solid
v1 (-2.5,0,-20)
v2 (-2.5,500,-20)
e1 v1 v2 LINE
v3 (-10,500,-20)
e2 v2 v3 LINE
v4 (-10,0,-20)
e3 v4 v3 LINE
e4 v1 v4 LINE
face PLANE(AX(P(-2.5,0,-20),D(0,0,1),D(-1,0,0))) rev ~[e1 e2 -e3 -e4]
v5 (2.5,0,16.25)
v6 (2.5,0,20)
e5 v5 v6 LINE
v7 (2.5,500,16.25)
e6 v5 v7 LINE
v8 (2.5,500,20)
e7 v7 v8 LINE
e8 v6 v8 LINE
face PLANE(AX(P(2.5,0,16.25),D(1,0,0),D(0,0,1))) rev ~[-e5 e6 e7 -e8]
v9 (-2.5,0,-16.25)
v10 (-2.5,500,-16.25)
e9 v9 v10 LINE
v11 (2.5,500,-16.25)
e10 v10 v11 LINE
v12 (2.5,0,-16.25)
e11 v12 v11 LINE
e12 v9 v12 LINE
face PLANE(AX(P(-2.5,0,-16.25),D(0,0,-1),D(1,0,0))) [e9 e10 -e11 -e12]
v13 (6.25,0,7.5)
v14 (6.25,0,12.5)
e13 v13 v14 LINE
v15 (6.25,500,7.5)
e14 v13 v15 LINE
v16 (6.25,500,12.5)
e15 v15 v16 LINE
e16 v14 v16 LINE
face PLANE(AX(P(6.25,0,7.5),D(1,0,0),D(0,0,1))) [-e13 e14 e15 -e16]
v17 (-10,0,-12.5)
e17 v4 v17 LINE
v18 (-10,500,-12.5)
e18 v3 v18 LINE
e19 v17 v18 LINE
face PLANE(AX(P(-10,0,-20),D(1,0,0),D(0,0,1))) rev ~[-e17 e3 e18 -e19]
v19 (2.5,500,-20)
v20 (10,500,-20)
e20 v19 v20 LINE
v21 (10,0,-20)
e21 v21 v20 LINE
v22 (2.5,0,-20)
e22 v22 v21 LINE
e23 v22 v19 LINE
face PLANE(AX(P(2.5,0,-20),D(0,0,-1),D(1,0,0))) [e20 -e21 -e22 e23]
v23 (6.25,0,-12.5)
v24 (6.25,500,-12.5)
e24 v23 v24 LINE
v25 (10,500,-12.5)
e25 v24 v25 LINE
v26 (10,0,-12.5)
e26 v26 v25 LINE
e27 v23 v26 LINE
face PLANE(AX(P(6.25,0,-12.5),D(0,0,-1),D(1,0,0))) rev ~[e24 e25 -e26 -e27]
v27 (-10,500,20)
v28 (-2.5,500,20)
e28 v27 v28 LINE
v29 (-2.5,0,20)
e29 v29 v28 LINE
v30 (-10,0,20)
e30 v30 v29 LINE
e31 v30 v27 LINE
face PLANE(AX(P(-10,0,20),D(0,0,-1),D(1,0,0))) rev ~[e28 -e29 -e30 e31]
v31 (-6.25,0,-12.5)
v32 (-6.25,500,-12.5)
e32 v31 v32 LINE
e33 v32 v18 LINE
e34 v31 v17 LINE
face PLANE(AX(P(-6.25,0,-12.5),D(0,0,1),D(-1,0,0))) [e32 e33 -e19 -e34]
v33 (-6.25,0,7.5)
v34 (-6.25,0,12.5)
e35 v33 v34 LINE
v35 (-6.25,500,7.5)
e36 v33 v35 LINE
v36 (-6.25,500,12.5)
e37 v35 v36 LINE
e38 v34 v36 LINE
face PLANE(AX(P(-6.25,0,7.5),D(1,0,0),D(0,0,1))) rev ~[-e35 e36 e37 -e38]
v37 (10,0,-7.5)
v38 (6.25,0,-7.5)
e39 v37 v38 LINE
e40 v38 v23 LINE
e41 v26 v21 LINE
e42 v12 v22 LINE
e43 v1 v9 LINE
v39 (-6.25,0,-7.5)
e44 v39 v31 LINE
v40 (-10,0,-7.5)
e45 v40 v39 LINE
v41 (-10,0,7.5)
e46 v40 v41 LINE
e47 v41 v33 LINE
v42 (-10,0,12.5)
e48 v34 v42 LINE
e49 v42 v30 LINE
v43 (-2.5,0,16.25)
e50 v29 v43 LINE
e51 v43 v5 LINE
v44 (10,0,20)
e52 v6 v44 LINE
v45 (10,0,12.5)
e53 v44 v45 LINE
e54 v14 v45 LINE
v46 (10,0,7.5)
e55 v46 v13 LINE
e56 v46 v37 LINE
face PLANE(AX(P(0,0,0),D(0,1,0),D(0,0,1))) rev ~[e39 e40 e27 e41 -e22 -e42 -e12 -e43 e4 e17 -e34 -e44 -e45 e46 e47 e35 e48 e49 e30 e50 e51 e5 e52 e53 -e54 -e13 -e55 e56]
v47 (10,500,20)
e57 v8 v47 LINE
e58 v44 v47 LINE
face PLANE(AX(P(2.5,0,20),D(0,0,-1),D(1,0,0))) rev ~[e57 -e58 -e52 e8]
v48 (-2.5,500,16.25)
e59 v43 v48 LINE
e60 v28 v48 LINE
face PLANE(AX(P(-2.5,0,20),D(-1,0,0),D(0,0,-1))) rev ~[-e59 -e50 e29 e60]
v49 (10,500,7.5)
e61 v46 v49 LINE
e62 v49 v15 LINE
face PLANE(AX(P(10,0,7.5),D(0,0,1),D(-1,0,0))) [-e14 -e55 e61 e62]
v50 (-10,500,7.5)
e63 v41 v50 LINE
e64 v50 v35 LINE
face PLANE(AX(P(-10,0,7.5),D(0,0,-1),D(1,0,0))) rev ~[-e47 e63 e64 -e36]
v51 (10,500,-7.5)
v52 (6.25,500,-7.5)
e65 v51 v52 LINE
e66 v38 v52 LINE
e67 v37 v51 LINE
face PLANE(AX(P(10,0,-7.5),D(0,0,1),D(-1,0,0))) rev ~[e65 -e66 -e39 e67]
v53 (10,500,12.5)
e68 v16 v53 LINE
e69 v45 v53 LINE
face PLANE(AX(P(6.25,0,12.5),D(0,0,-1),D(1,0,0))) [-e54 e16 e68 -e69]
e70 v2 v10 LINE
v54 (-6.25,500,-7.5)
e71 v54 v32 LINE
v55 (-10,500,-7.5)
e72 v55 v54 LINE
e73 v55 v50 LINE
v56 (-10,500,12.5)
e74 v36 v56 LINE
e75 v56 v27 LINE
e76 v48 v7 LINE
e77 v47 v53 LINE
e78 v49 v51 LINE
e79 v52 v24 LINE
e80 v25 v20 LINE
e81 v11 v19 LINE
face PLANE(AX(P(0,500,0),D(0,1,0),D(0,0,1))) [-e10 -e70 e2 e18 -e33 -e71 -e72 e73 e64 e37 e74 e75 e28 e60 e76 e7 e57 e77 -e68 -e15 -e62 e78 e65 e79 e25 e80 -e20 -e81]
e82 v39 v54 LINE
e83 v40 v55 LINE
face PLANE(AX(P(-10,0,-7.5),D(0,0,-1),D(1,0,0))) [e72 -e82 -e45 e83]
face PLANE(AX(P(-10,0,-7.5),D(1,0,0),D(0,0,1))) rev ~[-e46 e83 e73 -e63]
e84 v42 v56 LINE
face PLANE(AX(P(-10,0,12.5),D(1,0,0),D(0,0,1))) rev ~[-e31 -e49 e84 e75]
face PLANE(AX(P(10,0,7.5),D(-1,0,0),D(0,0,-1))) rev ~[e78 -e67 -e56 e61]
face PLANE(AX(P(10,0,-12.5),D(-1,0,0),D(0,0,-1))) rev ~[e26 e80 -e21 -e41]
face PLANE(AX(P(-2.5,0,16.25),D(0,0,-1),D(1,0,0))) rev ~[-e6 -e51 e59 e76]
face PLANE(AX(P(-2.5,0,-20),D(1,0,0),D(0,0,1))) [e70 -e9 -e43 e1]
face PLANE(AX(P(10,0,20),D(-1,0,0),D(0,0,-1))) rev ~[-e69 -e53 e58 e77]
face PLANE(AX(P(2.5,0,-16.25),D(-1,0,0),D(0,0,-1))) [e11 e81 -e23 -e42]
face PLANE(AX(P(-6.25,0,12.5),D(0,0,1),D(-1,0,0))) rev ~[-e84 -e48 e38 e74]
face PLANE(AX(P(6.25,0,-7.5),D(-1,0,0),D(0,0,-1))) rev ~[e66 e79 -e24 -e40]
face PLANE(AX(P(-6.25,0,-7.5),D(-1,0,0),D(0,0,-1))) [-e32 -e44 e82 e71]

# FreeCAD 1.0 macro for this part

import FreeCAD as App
import Part
import Sketcher
from FreeCAD import Vector
Q = App.Units.Quantity

doc = App.newDocument("Part")
body = doc.addObject("PartDesign::Body", "Body")

# Sketch on XZ plane
sketch1 = body.newObject("Sketcher::SketchObject", "Sketch")
sketch1.AttachmentSupport = (doc.getObject("XZ_Plane"), [""])
sketch1.MapMode = "FlatFace"
sketch1.addGeometry([
    Part.LineSegment(Vector(-6.25, 12.5, 0), Vector(-6.25, 7.5, 0)),  # 0
    Part.LineSegment(Vector(-6.25, 7.5, 0), Vector(-10, 7.5, 0)),  # 1
    Part.LineSegment(Vector(-10, 7.5, 0), Vector(-10, -7.5, 0)),  # 2
    Part.LineSegment(Vector(-10, -7.5, 0), Vector(-6.25, -7.5, 0)),  # 3
    Part.LineSegment(Vector(-6.25, -7.5, 0), Vector(-6.25, -12.5, 0)),  # 4
    Part.LineSegment(Vector(-6.25, -12.5, 0), Vector(-10, -12.5, 0)),  # 5
    Part.LineSegment(Vector(-10, -12.5, 0), Vector(-10, -20, 0)),  # 6
    Part.LineSegment(Vector(-10, -20, 0), Vector(-2.5, -20, 0)),  # 7
    Part.LineSegment(Vector(-2.5, -20, 0), Vector(-2.5, -16.25, 0)),  # 8
    Part.LineSegment(Vector(-2.5, -16.25, 0), Vector(2.5, -16.25, 0)),  # 9
    Part.LineSegment(Vector(2.5, -16.25, 0), Vector(2.5, -20, 0)),  # 10
    Part.LineSegment(Vector(2.5, -20, 0), Vector(10, -20, 0)),  # 11
    Part.LineSegment(Vector(10, -20, 0), Vector(10, -12.5, 0)),  # 12
    Part.LineSegment(Vector(10, -12.5, 0), Vector(6.25, -12.5, 0)),  # 13
    Part.LineSegment(Vector(6.25, -12.5, 0), Vector(6.25, -7.5, 0)),  # 14
    Part.LineSegment(Vector(6.25, -7.5, 0), Vector(10, -7.5, 0)),  # 15
    Part.LineSegment(Vector(10, -7.5, 0), Vector(10, 7.5, 0)),  # 16
    Part.LineSegment(Vector(10, 7.5, 0), Vector(6.25, 7.5, 0)),  # 17
    Part.LineSegment(Vector(6.25, 7.5, 0), Vector(6.25, 12.5, 0)),  # 18
    Part.LineSegment(Vector(6.25, 12.5, 0), Vector(10, 12.5, 0)),  # 19
    Part.LineSegment(Vector(10, 12.5, 0), Vector(10, 20, 0)),  # 20
    Part.LineSegment(Vector(10, 20, 0), Vector(2.5, 20, 0)),  # 21
    Part.LineSegment(Vector(2.5, 20, 0), Vector(2.5, 16.25, 0)),  # 22
    Part.LineSegment(Vector(2.5, 16.25, 0), Vector(-2.5, 16.25, 0)),  # 23
    Part.LineSegment(Vector(-2.5, 16.25, 0), Vector(-2.5, 20, 0)),  # 24
    Part.LineSegment(Vector(-2.5, 20, 0), Vector(-10, 20, 0)),  # 25
    Part.LineSegment(Vector(-10, 20, 0), Vector(-10, 12.5, 0)),  # 26
    Part.LineSegment(Vector(-10, 12.5, 0), Vector(-6.25, 12.5, 0)),  # 27
], False)
sketch1.addConstraint([
    Sketcher.Constraint("Coincident", 0, 2, 1, 1),
    Sketcher.Constraint("Coincident", 1, 2, 2, 1),
    Sketcher.Constraint("Coincident", 2, 2, 3, 1),
    Sketcher.Constraint("Coincident", 3, 2, 4, 1),
    Sketcher.Constraint("Coincident", 4, 2, 5, 1),
    Sketcher.Constraint("Coincident", 5, 2, 6, 1),
    Sketcher.Constraint("Coincident", 6, 2, 7, 1),
    Sketcher.Constraint("Coincident", 7, 2, 8, 1),
    Sketcher.Constraint("Coincident", 8, 2, 9, 1),
    Sketcher.Constraint("Coincident", 9, 2, 10, 1),
    Sketcher.Constraint("Coincident", 10, 2, 11, 1),
    Sketcher.Constraint("Coincident", 11, 2, 12, 1),
    Sketcher.Constraint("Coincident", 12, 2, 13, 1),
    Sketcher.Constraint("Coincident", 13, 2, 14, 1),
    Sketcher.Constraint("Coincident", 14, 2, 15, 1),
    Sketcher.Constraint("Coincident", 15, 2, 16, 1),
    Sketcher.Constraint("Coincident", 16, 2, 17, 1),
    Sketcher.Constraint("Coincident", 17, 2, 18, 1),
    Sketcher.Constraint("Coincident", 18, 2, 19, 1),
    Sketcher.Constraint("Coincident", 19, 2, 20, 1),
    Sketcher.Constraint("Coincident", 20, 2, 21, 1),
    Sketcher.Constraint("Coincident", 21, 2, 22, 1),
    Sketcher.Constraint("Coincident", 22, 2, 23, 1),
    Sketcher.Constraint("Coincident", 23, 2, 24, 1),
    Sketcher.Constraint("Coincident", 24, 2, 25, 1),
    Sketcher.Constraint("Coincident", 25, 2, 26, 1),
    Sketcher.Constraint("Coincident", 26, 2, 27, 1),
    Sketcher.Constraint("Coincident", 27, 2, 0, 1),
    Sketcher.Constraint("Vertical", 0),
    Sketcher.Constraint("Horizontal", 1),
    Sketcher.Constraint("Vertical", 2),
    Sketcher.Constraint("Horizontal", 3),
    Sketcher.Constraint("Vertical", 4),
    Sketcher.Constraint("Horizontal", 5),
    Sketcher.Constraint("Vertical", 6),
    Sketcher.Constraint("Horizontal", 7),
    Sketcher.Constraint("Vertical", 8),
    Sketcher.Constraint("Horizontal", 9),
    Sketcher.Constraint("Vertical", 10),
    Sketcher.Constraint("Horizontal", 11),
    Sketcher.Constraint("Vertical", 12),
    Sketcher.Constraint("Horizontal", 13),
    Sketcher.Constraint("Vertical", 14),
    Sketcher.Constraint("Horizontal", 15),
    Sketcher.Constraint("Vertical", 16),
    Sketcher.Constraint("Horizontal", 17),
    Sketcher.Constraint("Vertical", 18),
    Sketcher.Constraint("Horizontal", 19),
    Sketcher.Constraint("Vertical", 20),
    Sketcher.Constraint("Horizontal", 21),
    Sketcher.Constraint("Vertical", 22),
    Sketcher.Constraint("Horizontal", 23),
    Sketcher.Constraint("Vertical", 24),
    Sketcher.Constraint("Horizontal", 25),
    Sketcher.Constraint("Vertical", 26),
    Sketcher.Constraint("Horizontal", 27),
    Sketcher.Constraint("Symmetric", 0, 2, 14, 2, -1, 1),
    Sketcher.Constraint("Symmetric", 2, 2, 16, 2, -1, 1),
    Sketcher.Constraint("Symmetric", 4, 2, 18, 2, -1, 1),
    Sketcher.Constraint("Symmetric", 6, 2, 20, 2, -1, 1),
    Sketcher.Constraint("Symmetric", 8, 2, 22, 2, -1, 1),
    Sketcher.Constraint("Symmetric", 10, 2, 24, 2, -1, 1),
    Sketcher.Constraint("Symmetric", 12, 2, 26, 2, -1, 1),
    Sketcher.Constraint("Symmetric", 7, 2, 10, 2, -2),
    Sketcher.Constraint("Symmetric", 5, 2, 12, 2, -2),
    Sketcher.Constraint("Symmetric", 3, 2, 14, 2, -2),
    Sketcher.Constraint("Vertical", 2, 2, 5, 2),
    Sketcher.Constraint("Equal", 23, 0),
    Sketcher.Constraint("Equal", 25, 6),
    Sketcher.Constraint("Equal", 27, 8),
    Sketcher.Constraint("DistanceX", 9, 1, 9, 2, Q("5 mm")),
    Sketcher.Constraint("DistanceY", 2, 2, 2, 1, Q("15 mm")),
    Sketcher.Constraint("DistanceX", 7, 1, 7, 2, Q("7.5 mm")),
    Sketcher.Constraint("DistanceX", 1, 2, 1, 1, Q("3.75 mm")),
])
pad1 = body.newObject("PartDesign::Pad", "Pad")
pad1.Profile = sketch1
pad1.Length = 500
pad1.Reversed = True

doc.recompute()
